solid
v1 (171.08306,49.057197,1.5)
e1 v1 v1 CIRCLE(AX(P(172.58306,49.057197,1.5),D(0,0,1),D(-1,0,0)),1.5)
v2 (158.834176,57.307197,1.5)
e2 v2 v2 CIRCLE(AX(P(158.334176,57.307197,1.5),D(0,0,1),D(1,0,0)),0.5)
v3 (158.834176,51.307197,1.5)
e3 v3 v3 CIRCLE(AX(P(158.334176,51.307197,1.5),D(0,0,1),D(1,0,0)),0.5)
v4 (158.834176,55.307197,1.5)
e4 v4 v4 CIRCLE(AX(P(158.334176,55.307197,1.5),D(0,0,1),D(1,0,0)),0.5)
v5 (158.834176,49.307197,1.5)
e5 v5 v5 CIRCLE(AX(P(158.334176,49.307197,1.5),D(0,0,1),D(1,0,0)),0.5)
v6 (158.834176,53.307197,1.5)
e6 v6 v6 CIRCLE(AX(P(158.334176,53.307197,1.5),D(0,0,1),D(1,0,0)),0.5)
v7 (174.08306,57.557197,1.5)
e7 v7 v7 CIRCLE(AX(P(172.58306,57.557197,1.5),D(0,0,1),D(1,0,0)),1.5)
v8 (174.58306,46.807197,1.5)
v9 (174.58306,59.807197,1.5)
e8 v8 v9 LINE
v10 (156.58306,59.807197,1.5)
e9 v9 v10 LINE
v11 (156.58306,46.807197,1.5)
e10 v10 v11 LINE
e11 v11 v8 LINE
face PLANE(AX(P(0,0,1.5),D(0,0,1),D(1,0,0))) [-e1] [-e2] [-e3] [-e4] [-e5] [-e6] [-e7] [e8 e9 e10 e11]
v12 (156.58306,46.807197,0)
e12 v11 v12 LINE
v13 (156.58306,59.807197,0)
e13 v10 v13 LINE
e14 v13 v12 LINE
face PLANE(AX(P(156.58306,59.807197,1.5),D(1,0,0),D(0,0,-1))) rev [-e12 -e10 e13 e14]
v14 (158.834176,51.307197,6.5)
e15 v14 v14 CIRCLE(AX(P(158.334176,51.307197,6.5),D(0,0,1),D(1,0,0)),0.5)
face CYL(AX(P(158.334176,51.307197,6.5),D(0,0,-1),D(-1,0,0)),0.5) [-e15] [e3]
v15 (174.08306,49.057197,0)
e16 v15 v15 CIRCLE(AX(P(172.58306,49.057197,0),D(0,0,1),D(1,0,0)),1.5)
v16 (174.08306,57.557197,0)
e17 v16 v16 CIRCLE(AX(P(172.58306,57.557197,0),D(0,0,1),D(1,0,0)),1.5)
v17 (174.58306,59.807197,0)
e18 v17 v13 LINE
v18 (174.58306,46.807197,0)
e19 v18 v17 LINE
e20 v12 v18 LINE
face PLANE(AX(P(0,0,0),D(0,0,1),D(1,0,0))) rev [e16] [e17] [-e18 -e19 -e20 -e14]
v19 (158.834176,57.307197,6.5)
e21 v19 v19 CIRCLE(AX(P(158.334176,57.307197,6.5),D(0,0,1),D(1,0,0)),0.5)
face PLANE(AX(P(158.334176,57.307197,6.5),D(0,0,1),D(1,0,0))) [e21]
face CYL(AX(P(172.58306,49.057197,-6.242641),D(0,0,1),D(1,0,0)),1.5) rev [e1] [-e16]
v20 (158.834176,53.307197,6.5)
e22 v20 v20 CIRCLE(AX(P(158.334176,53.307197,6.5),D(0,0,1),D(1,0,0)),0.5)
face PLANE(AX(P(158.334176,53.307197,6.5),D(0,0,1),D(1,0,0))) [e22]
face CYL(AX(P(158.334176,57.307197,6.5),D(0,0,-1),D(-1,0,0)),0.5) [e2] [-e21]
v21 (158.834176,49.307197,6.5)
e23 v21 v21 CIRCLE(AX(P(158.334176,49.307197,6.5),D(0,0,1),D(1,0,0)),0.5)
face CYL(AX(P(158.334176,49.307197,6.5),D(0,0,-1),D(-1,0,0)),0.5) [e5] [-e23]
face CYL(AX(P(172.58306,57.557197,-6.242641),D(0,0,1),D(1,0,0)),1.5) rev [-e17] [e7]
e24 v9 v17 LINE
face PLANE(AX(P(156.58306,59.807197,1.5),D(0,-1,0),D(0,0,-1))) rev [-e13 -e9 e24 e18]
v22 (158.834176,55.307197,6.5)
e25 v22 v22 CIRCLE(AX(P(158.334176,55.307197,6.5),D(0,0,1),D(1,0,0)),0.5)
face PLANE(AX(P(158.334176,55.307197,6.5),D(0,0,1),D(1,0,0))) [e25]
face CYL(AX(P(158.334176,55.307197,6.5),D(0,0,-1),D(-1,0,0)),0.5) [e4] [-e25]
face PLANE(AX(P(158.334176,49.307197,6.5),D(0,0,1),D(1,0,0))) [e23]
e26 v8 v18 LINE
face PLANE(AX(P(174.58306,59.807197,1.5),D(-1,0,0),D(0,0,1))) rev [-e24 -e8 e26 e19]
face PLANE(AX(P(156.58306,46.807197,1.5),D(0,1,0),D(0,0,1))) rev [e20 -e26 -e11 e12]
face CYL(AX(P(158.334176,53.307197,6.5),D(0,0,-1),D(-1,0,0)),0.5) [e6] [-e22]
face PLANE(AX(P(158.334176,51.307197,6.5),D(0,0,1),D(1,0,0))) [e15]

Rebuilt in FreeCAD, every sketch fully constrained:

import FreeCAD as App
import Part
import Sketcher
from FreeCAD import Vector

doc = App.newDocument("Part")
body = doc.addObject("PartDesign::Body", "Body")

# Sketch on XY plane
sketch1 = body.newObject("Sketcher::SketchObject", "Sketch")
sketch1.AttachmentSupport = (doc.getObject("XY_Plane"), [""])
sketch1.MapMode = "FlatFace"
sketch1.addGeometry(Part.LineSegment(Vector(157, 60, 0), Vector(157, 47, 0)), False)
sketch1.addGeometry(Part.LineSegment(Vector(157, 47, 0), Vector(175, 47, 0)), False)
sketch1.addGeometry(Part.LineSegment(Vector(175, 47, 0), Vector(175, 60, 0)), False)
sketch1.addGeometry(Part.LineSegment(Vector(175, 60, 0), Vector(157, 60, 0)), False)
sketch1.addConstraint(Sketcher.Constraint("Coincident", 0, 2, 1, 1))
sketch1.addConstraint(Sketcher.Constraint("Coincident", 1, 2, 2, 1))
sketch1.addConstraint(Sketcher.Constraint("Coincident", 2, 2, 3, 1))
sketch1.addConstraint(Sketcher.Constraint("Coincident", 3, 2, 0, 1))
sketch1.addConstraint(Sketcher.Constraint("Vertical", 0))
sketch1.addConstraint(Sketcher.Constraint("Horizontal", 1))
sketch1.addConstraint(Sketcher.Constraint("Vertical", 2))
sketch1.addConstraint(Sketcher.Constraint("Horizontal", 3))
sketch1.addConstraint(Sketcher.Constraint("DistanceX", 1, 1, 1, 2, 18.0))
sketch1.addConstraint(Sketcher.Constraint("DistanceY", 0, 2, 0, 1, 13.0))
sketch1.addConstraint(Sketcher.Constraint("DistanceX", -1, 1, 0, 2, 156.58306))
sketch1.addConstraint(Sketcher.Constraint("DistanceY", -1, 1, 0, 2, 46.807197))
pad1 = body.newObject("PartDesign::Pad", "Pad")
pad1.Profile = sketch1
pad1.Length = 1.5

# Sketch on XY plane
sketch2 = body.newObject("Sketcher::SketchObject", "Sketch001")
sketch2.AttachmentSupport = (doc.getObject("XY_Plane"), [""])
sketch2.MapMode = "FlatFace"
sketch2.AttachmentOffset = App.Placement(Vector(0, 0, 1.5), App.Rotation())
sketch2.addGeometry(Part.Circle(Vector(158.3, 53.3, 0), Vector(0, 0, 1), 0.5), False)
sketch2.addGeometry(Part.Circle(Vector(158.3, 55.3, 0), Vector(0, 0, 1), 0.5), False)
sketch2.addGeometry(Part.Circle(Vector(158.3, 57.3, 0), Vector(0, 0, 1), 0.5), False)
sketch2.addGeometry(Part.Circle(Vector(158.3, 51.3, 0), Vector(0, 0, 1), 0.5), False)
sketch2.addGeometry(Part.Circle(Vector(158.3, 49.3, 0), Vector(0, 0, 1), 0.5), False)
sketch2.addConstraint(Sketcher.Constraint("Equal", 0, 1))
sketch2.addConstraint(Sketcher.Constraint("Equal", 1, 2))
sketch2.addConstraint(Sketcher.Constraint("Equal", 2, 3))
sketch2.addConstraint(Sketcher.Constraint("Equal", 3, 4))
sketch2.addConstraint(Sketcher.Constraint("Vertical", 0, 3, 1, 3))
sketch2.addConstraint(Sketcher.Constraint("Vertical", 1, 3, 2, 3))
sketch2.addConstraint(Sketcher.Constraint("Vertical", 2, 3, 3, 3))
sketch2.addConstraint(Sketcher.Constraint("Vertical", 3, 3, 4, 3))
sketch2.addConstraint(Sketcher.Constraint("Diameter", 0, 1.0))
sketch2.addConstraint(Sketcher.Constraint("DistanceY", 0, 3, 1, 3, 2.0))
sketch2.addConstraint(Sketcher.Constraint("DistanceY", 1, 3, 2, 3, 2.0))
sketch2.addConstraint(Sketcher.Constraint("DistanceY", 3, 3, 0, 3, 2.0))
sketch2.addConstraint(Sketcher.Constraint("DistanceY", 4, 3, 3, 3, 2.0))
sketch2.addConstraint(Sketcher.Constraint("DistanceX", -1, 1, 0, 3, 158.334176))
sketch2.addConstraint(Sketcher.Constraint("DistanceY", -1, 1, 0, 3, 53.307197))
pad2 = body.newObject("PartDesign::Pad", "Pad001")
pad2.Profile = sketch2
pad2.Length = 5

# Sketch on XY plane
sketch3 = body.newObject("Sketcher::SketchObject", "Sketch002")
sketch3.AttachmentSupport = (doc.getObject("XY_Plane"), [""])
sketch3.MapMode = "FlatFace"
sketch3.AttachmentOffset = App.Placement(Vector(0, 0, 1.5), App.Rotation())
sketch3.addGeometry(Part.Circle(Vector(172.6, 57.6, 0), Vector(0, 0, 1), 1.5), False)
sketch3.addConstraint(Sketcher.Constraint("Diameter", 0, 3.0))
sketch3.addConstraint(Sketcher.Constraint("DistanceX", -1, 1, 0, 3, 172.58306))
sketch3.addConstraint(Sketcher.Constraint("DistanceY", -1, 1, 0, 3, 57.557197))
pocket1 = body.newObject("PartDesign::Pocket", "Pocket")
pocket1.Profile = sketch3
pocket1.Type = "UpToFirst"

# Sketch on XY plane
sketch4 = body.newObject("Sketcher::SketchObject", "Sketch003")
sketch4.AttachmentSupport = (doc.getObject("XY_Plane"), [""])
sketch4.MapMode = "FlatFace"
sketch4.AttachmentOffset = App.Placement(Vector(0, 0, 1.5), App.Rotation())
sketch4.addGeometry(Part.Circle(Vector(172.6, 49.1, 0), Vector(0, 0, 1), 1.5), False)
sketch4.addConstraint(Sketcher.Constraint("Diameter", 0, 3.0))
sketch4.addConstraint(Sketcher.Constraint("DistanceX", -1, 1, 0, 3, 172.58306))
sketch4.addConstraint(Sketcher.Constraint("DistanceY", -1, 1, 0, 3, 49.057197))
pocket2 = body.newObject("PartDesign::Pocket", "Pocket001")
pocket2.Profile = sketch4
pocket2.Type = "UpToFirst"

doc.recompute()
